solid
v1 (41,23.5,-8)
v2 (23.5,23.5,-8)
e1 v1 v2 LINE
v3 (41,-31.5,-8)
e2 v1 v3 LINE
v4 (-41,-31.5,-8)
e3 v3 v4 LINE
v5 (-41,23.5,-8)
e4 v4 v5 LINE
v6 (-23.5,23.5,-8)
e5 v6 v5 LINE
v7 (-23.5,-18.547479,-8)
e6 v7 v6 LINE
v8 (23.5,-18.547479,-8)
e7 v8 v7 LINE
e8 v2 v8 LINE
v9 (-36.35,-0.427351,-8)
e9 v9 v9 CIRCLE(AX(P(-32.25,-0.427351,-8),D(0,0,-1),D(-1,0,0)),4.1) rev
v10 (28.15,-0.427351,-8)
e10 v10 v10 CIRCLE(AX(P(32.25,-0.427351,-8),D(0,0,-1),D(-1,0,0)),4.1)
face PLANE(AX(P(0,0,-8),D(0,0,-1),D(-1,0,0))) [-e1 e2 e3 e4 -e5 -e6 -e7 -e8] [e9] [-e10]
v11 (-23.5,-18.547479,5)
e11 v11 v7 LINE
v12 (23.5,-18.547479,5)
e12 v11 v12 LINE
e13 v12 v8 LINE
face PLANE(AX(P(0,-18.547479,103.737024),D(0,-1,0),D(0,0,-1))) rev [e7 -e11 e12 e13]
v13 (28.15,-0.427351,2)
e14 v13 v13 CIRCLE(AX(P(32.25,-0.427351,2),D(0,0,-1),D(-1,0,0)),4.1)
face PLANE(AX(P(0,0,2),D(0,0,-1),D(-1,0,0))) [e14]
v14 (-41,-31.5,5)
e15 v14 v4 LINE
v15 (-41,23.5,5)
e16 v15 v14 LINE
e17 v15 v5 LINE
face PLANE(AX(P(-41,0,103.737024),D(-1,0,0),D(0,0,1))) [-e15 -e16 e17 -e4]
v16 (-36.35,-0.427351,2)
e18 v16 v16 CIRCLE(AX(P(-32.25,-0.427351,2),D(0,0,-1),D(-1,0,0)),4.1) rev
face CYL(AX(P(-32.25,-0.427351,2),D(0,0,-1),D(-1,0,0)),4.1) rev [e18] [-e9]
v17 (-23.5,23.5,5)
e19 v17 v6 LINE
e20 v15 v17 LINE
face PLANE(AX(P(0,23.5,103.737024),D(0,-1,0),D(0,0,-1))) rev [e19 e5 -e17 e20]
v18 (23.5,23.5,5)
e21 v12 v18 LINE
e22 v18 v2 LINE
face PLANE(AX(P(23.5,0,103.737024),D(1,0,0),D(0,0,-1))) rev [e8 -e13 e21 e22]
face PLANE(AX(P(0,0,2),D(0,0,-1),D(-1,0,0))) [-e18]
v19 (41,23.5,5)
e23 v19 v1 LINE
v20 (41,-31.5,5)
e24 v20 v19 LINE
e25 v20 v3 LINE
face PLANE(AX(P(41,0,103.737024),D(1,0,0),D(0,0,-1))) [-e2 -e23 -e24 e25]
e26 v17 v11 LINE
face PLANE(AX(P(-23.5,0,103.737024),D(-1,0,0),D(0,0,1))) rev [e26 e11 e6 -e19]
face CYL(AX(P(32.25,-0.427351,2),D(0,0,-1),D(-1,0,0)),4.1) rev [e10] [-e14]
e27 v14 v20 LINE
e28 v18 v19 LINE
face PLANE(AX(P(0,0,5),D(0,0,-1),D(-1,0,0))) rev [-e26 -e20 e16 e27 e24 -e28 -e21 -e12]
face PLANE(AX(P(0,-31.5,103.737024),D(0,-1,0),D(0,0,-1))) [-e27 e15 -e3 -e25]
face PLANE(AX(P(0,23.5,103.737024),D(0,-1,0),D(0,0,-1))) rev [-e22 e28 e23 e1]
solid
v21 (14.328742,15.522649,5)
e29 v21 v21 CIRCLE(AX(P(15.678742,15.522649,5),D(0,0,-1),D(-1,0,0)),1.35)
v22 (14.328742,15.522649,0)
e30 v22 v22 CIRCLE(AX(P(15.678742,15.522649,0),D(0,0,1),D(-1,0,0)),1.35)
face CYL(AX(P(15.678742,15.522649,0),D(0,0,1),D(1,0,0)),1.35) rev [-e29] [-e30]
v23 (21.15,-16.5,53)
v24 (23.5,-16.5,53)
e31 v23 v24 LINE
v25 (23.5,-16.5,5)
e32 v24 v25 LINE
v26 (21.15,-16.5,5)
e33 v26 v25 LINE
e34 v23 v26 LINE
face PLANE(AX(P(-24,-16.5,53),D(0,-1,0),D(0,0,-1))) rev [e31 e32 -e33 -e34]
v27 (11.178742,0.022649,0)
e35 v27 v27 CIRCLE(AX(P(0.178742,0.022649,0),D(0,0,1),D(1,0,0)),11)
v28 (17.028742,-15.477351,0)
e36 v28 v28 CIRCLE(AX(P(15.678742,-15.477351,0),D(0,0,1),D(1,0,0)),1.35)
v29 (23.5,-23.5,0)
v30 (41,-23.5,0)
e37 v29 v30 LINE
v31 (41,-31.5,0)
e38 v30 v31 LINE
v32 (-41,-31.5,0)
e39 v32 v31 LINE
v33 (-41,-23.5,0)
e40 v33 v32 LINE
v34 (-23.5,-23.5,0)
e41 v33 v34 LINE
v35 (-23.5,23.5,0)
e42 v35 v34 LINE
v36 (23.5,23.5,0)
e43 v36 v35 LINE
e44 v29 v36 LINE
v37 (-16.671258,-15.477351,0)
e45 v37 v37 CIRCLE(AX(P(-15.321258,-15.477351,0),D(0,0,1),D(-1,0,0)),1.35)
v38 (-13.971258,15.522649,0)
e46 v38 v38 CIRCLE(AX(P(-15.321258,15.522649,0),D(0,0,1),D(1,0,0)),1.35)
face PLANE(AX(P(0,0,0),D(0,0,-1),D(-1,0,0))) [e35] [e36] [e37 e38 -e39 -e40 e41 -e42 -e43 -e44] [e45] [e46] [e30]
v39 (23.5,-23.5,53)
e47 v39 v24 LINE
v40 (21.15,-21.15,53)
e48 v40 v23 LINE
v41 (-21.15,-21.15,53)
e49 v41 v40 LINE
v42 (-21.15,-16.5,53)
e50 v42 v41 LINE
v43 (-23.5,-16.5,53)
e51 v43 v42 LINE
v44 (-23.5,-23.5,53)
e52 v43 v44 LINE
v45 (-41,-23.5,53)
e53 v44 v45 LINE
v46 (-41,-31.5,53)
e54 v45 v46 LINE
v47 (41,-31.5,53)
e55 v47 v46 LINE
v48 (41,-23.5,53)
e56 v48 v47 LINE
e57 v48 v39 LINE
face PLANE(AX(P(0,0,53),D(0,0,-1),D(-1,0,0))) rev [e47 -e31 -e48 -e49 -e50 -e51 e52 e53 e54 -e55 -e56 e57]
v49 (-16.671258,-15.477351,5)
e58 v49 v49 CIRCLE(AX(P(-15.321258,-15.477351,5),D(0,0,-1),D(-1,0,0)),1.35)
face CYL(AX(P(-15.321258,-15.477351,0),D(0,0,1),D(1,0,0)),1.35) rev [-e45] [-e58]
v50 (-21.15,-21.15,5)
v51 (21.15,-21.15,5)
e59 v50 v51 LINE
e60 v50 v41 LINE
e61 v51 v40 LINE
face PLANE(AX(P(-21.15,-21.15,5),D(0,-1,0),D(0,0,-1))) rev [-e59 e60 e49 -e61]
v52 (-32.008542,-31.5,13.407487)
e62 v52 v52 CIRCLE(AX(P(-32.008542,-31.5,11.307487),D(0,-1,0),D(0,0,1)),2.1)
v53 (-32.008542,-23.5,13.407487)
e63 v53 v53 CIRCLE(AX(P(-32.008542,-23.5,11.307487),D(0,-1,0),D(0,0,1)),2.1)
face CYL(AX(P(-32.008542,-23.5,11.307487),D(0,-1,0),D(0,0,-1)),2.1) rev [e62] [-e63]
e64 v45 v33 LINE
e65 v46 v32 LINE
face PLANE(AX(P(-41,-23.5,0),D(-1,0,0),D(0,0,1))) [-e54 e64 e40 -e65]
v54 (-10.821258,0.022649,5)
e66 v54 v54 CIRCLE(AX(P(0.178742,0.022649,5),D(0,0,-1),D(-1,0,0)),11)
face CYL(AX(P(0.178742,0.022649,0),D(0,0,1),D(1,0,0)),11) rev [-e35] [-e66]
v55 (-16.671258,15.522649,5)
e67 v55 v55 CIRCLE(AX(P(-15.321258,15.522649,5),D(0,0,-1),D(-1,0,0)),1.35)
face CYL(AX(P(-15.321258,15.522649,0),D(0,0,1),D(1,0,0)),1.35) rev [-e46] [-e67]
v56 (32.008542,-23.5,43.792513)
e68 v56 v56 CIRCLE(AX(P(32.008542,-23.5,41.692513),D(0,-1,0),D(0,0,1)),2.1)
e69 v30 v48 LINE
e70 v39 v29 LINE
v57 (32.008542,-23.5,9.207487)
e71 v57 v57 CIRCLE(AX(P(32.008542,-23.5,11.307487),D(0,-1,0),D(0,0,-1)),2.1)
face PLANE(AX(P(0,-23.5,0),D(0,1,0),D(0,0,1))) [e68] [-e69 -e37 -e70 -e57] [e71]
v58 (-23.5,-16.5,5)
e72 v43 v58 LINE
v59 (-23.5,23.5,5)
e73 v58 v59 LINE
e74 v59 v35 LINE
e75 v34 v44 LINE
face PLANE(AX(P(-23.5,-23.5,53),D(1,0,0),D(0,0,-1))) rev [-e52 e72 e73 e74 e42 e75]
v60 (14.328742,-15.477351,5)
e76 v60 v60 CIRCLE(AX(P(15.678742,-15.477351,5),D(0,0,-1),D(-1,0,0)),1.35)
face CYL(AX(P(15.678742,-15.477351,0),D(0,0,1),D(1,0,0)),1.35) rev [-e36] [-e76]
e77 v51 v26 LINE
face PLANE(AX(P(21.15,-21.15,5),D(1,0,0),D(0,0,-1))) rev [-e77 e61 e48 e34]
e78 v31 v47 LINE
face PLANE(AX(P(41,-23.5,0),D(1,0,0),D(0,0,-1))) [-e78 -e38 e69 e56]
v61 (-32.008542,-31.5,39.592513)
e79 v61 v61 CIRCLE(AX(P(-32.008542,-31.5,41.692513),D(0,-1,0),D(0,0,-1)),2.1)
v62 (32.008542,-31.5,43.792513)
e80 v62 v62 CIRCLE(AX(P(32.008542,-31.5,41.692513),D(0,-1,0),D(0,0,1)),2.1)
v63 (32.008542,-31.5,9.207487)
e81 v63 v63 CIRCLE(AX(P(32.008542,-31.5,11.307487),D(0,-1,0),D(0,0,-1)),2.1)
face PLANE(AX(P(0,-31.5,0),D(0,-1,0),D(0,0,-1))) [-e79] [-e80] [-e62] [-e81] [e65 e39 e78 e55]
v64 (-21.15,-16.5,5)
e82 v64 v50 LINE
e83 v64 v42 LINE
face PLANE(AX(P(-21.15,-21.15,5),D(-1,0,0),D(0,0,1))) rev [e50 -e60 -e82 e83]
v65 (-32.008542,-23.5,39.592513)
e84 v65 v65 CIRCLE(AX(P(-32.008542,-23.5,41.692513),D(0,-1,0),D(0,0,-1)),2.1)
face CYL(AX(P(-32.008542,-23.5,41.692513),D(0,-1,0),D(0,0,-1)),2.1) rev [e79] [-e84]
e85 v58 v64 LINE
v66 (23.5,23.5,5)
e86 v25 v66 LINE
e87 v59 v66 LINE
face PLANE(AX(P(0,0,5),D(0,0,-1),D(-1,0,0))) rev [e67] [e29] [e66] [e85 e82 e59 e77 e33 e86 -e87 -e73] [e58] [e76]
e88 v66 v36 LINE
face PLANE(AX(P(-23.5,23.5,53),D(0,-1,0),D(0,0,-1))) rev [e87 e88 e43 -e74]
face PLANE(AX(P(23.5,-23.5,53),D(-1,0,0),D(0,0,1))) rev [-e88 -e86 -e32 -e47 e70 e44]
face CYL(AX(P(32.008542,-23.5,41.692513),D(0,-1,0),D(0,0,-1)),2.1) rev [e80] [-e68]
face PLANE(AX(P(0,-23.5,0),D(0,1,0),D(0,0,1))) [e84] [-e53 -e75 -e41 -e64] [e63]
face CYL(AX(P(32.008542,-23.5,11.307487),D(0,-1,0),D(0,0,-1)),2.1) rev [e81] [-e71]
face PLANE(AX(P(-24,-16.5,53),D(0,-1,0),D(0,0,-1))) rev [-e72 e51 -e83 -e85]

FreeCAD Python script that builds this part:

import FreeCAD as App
import Part
import Sketcher
Q = App.Units.Quantity

doc = App.newDocument("Part")
body = doc.addObject("PartDesign::Body", "Body")

# Sketch on XY plane
sketch1 = body.newObject("Sketcher::SketchObject", "Sketch")
sketch1.AttachmentSupport = (doc.getObject("XY_Plane"), [""])
sketch1.MapMode = "FlatFace"
sketch1.addGeometry(Part.LineSegment(App.Vector(-24, 24, 0), App.Vector(-24, -24, 0)), False)
sketch1.addGeometry(Part.LineSegment(App.Vector(-24, -24, 0), App.Vector(24, -24, 0)), False)
sketch1.addGeometry(Part.LineSegment(App.Vector(24, -24, 0), App.Vector(24, 24, 0)), False)
sketch1.addGeometry(Part.LineSegment(App.Vector(24, 24, 0), App.Vector(-24, 24, 0)), False)
sketch1.addConstraint(Sketcher.Constraint("Coincident", 0, 2, 1, 1))
sketch1.addConstraint(Sketcher.Constraint("Coincident", 1, 2, 2, 1))
sketch1.addConstraint(Sketcher.Constraint("Coincident", 2, 2, 3, 1))
sketch1.addConstraint(Sketcher.Constraint("Coincident", 3, 2, 0, 1))
sketch1.addConstraint(Sketcher.Constraint("Vertical", 0))
sketch1.addConstraint(Sketcher.Constraint("Horizontal", 1))
sketch1.addConstraint(Sketcher.Constraint("Vertical", 2))
sketch1.addConstraint(Sketcher.Constraint("Horizontal", 3))
sketch1.addConstraint(Sketcher.Constraint("Symmetric", 0, 2, 2, 2, -1, 1))
sketch1.addConstraint(Sketcher.Constraint("Equal", 3, 0))
sketch1.addConstraint(Sketcher.Constraint("DistanceX", 1, 1, 1, 2, Q("47 mm")))
pad1 = body.newObject("PartDesign::Pad", "Pad")
pad1.Profile = sketch1
pad1.Length = 53

# Sketch on XY plane
sketch2 = body.newObject("Sketcher::SketchObject", "Sketch001")
sketch2.AttachmentSupport = (doc.getObject("XY_Plane"), [""])
sketch2.MapMode = "FlatFace"
sketch2.AttachmentOffset = App.Placement(App.Vector(0, 0, 53), App.Rotation())
sketch2.addGeometry(Part.LineSegment(App.Vector(-21, 21, 0), App.Vector(-21, -21, 0)), False)
sketch2.addGeometry(Part.LineSegment(App.Vector(-21, -21, 0), App.Vector(21, -21, 0)), False)
sketch2.addGeometry(Part.LineSegment(App.Vector(21, -21, 0), App.Vector(21, 21, 0)), False)
sketch2.addGeometry(Part.LineSegment(App.Vector(21, 21, 0), App.Vector(-21, 21, 0)), False)
sketch2.addConstraint(Sketcher.Constraint("Coincident", 0, 2, 1, 1))
sketch2.addConstraint(Sketcher.Constraint("Coincident", 1, 2, 2, 1))
sketch2.addConstraint(Sketcher.Constraint("Coincident", 2, 2, 3, 1))
sketch2.addConstraint(Sketcher.Constraint("Coincident", 3, 2, 0, 1))
sketch2.addConstraint(Sketcher.Constraint("Vertical", 0))
sketch2.addConstraint(Sketcher.Constraint("Horizontal", 1))
sketch2.addConstraint(Sketcher.Constraint("Vertical", 2))
sketch2.addConstraint(Sketcher.Constraint("Horizontal", 3))
sketch2.addConstraint(Sketcher.Constraint("Symmetric", 0, 2, 2, 2, -1, 1))
sketch2.addConstraint(Sketcher.Constraint("Equal", 3, 0))
sketch2.addConstraint(Sketcher.Constraint("DistanceX", 1, 1, 1, 2, Q("42.3 mm")))
pocket1 = body.newObject("PartDesign::Pocket", "Pocket")
pocket1.Profile = sketch2
pocket1.Length = 48

# Sketch on XY plane
sketch3 = body.newObject("Sketcher::SketchObject", "Sketch002")
sketch3.AttachmentSupport = (doc.getObject("XY_Plane"), [""])
sketch3.MapMode = "FlatFace"
sketch3.AttachmentOffset = App.Placement(App.Vector(0, 0, 5), App.Rotation())
sketch3.addGeometry(Part.Circle(App.Vector(0.2, 0, 0), App.Vector(0, 0, 1), 11), False)
sketch3.addGeometry(Part.Circle(App.Vector(-15.3, 15.5, 0), App.Vector(0, 0, 1), 1.4), False)
sketch3.addGeometry(Part.Circle(App.Vector(15.7, 15.5, 0), App.Vector(0, 0, 1), 1.4), False)
sketch3.addGeometry(Part.Circle(App.Vector(15.7, -15.5, 0), App.Vector(0, 0, 1), 1.4), False)
sketch3.addGeometry(Part.Circle(App.Vector(-15.3, -15.5, 0), App.Vector(0, 0, 1), 1.4), False)
sketch3.addConstraint(Sketcher.Constraint("Equal", 1, 2))
sketch3.addConstraint(Sketcher.Constraint("Equal", 2, 3))
sketch3.addConstraint(Sketcher.Constraint("Equal", 3, 4))
sketch3.addConstraint(Sketcher.Constraint("Horizontal", 1, 3, 2, 3))
sketch3.addConstraint(Sketcher.Constraint("Horizontal", 3, 3, 4, 3))
sketch3.addConstraint(Sketcher.Constraint("Vertical", 2, 3, 3, 3))
sketch3.addConstraint(Sketcher.Constraint("Vertical", 1, 3, 4, 3))
sketch3.addConstraint(Sketcher.Constraint("Diameter", 0, Q("22 mm")))
sketch3.addConstraint(Sketcher.Constraint("Diameter", 1, Q("2.7 mm")))
sketch3.addConstraint(Sketcher.Constraint("DistanceX", 1, 3, 2, 3, Q("31 mm")))
sketch3.addConstraint(Sketcher.Constraint("DistanceY", 3, 3, 2, 3, Q("31 mm")))
sketch3.addConstraint(Sketcher.Constraint("DistanceX", 1, 3, 0, 3, Q("15.5 mm")))
sketch3.addConstraint(Sketcher.Constraint("DistanceY", 0, 3, 1, 3, Q("15.5 mm")))
sketch3.addConstraint(Sketcher.Constraint("DistanceY", -1, 1, 0, 3, Q("0.022649 mm")))
sketch3.addConstraint(Sketcher.Constraint("DistanceX", -1, 1, 0, 3, Q("0.178742 mm")))
pocket2 = body.newObject("PartDesign::Pocket", "Pocket001")
pocket2.Profile = sketch3
pocket2.Type = "ThroughAll"
pocket2.Midplane = True

# Sketch on YZ plane
sketch4 = body.newObject("Sketcher::SketchObject", "Sketch003")
sketch4.AttachmentSupport = (doc.getObject("YZ_Plane"), [""])
sketch4.MapMode = "FlatFace"
sketch4.AttachmentOffset = App.Placement(App.Vector(0, 0, 23.5), App.Rotation())
sketch4.addGeometry(Part.LineSegment(App.Vector(24, 53, 0), App.Vector(-16, 53, 0)), False)
sketch4.addGeometry(Part.LineSegment(App.Vector(-16, 53, 0), App.Vector(-16, 5, 0)), False)
sketch4.addGeometry(Part.LineSegment(App.Vector(-16, 5, 0), App.Vector(24, 5, 0)), False)
sketch4.addGeometry(Part.LineSegment(App.Vector(24, 5, 0), App.Vector(24, 53, 0)), False)
sketch4.addConstraint(Sketcher.Constraint("Coincident", 0, 2, 1, 1))
sketch4.addConstraint(Sketcher.Constraint("Coincident", 1, 2, 2, 1))
sketch4.addConstraint(Sketcher.Constraint("Coincident", 2, 2, 3, 1))
sketch4.addConstraint(Sketcher.Constraint("Coincident", 3, 2, 0, 1))
sketch4.addConstraint(Sketcher.Constraint("Horizontal", 0))
sketch4.addConstraint(Sketcher.Constraint("Vertical", 1))
sketch4.addConstraint(Sketcher.Constraint("Horizontal", 2))
sketch4.addConstraint(Sketcher.Constraint("Vertical", 3))
sketch4.addConstraint(Sketcher.Constraint("DistanceX", 0, 2, 0, 1, Q("40 mm")))
sketch4.addConstraint(Sketcher.Constraint("DistanceY", 1, 2, 1, 1, Q("48 mm")))
sketch4.addConstraint(Sketcher.Constraint("DistanceY", -1, 1, 0, 2, Q("53 mm")))
sketch4.addConstraint(Sketcher.Constraint("DistanceX", 0, 2, -1, 1, Q("16.5 mm")))
pocket3 = body.newObject("PartDesign::Pocket", "Pocket002")
pocket3.Profile = sketch4
pocket3.Length = 47.5

# Sketch on XZ plane
sketch5 = body.newObject("Sketcher::SketchObject", "Sketch004")
sketch5.AttachmentSupport = (doc.getObject("XZ_Plane"), [""])
sketch5.MapMode = "FlatFace"
sketch5.AttachmentOffset = App.Placement(App.Vector(0, 0, 23.5), App.Rotation())
sketch5.addGeometry(Part.LineSegment(App.Vector(-24, 53, 0), App.Vector(-24, 0, 0)), False)
sketch5.addGeometry(Part.LineSegment(App.Vector(-24, 0, 0), App.Vector(24, 0, 0)), False)
sketch5.addGeometry(Part.LineSegment(App.Vector(24, 0, 0), App.Vector(24, 53, 0)), False)
sketch5.addGeometry(Part.LineSegment(App.Vector(24, 53, 0), App.Vector(-24, 53, 0)), False)
sketch5.addConstraint(Sketcher.Constraint("Coincident", 0, 2, 1, 1))
sketch5.addConstraint(Sketcher.Constraint("Coincident", 1, 2, 2, 1))
sketch5.addConstraint(Sketcher.Constraint("Coincident", 2, 2, 3, 1))
sketch5.addConstraint(Sketcher.Constraint("Coincident", 3, 2, 0, 1))
sketch5.addConstraint(Sketcher.Constraint("Vertical", 0))
sketch5.addConstraint(Sketcher.Constraint("Horizontal", 1))
sketch5.addConstraint(Sketcher.Constraint("Vertical", 2))
sketch5.addConstraint(Sketcher.Constraint("Horizontal", 3))
sketch5.addConstraint(Sketcher.Constraint("Symmetric", 0, 2, 1, 2, -1, 1))
sketch5.addConstraint(Sketcher.Constraint("DistanceX", 1, 1, 1, 2, Q("47 mm")))
sketch5.addConstraint(Sketcher.Constraint("DistanceY", 0, 2, 0, 1, Q("53 mm")))
pad2 = body.newObject("PartDesign::Pad", "Pad001")
pad2.Profile = sketch5
pad2.Length = 8

# Sketch on XZ plane
sketch6 = body.newObject("Sketcher::SketchObject", "Sketch005")
sketch6.AttachmentSupport = (doc.getObject("XZ_Plane"), [""])
sketch6.MapMode = "FlatFace"
sketch6.AttachmentOffset = App.Placement(App.Vector(0, 0, 31.5), App.Rotation())
sketch6.addGeometry(Part.LineSegment(App.Vector(-41, 53, 0), App.Vector(-41, 0, 0)), False)
sketch6.addGeometry(Part.LineSegment(App.Vector(-41, 0, 0), App.Vector(41, 0, 0)), False)
sketch6.addGeometry(Part.LineSegment(App.Vector(41, 0, 0), App.Vector(41, 53, 0)), False)
sketch6.addGeometry(Part.LineSegment(App.Vector(41, 53, 0), App.Vector(-41, 53, 0)), False)
sketch6.addGeometry(Part.Circle(App.Vector(-32, 11.3, 0), App.Vector(0, 0, 1), 2.1), False)
sketch6.addGeometry(Part.Circle(App.Vector(32, 11.3, 0), App.Vector(0, 0, 1), 2.1), False)
sketch6.addGeometry(Part.Circle(App.Vector(-32, 41.7, 0), App.Vector(0, 0, 1), 2.1), False)
sketch6.addGeometry(Part.Circle(App.Vector(32, 41.7, 0), App.Vector(0, 0, 1), 2.1), False)
sketch6.addConstraint(Sketcher.Constraint("Coincident", 0, 2, 1, 1))
sketch6.addConstraint(Sketcher.Constraint("Coincident", 1, 2, 2, 1))
sketch6.addConstraint(Sketcher.Constraint("Coincident", 2, 2, 3, 1))
sketch6.addConstraint(Sketcher.Constraint("Coincident", 3, 2, 0, 1))
sketch6.addConstraint(Sketcher.Constraint("Vertical", 0))
sketch6.addConstraint(Sketcher.Constraint("Horizontal", 1))
sketch6.addConstraint(Sketcher.Constraint("Vertical", 2))
sketch6.addConstraint(Sketcher.Constraint("Horizontal", 3))
sketch6.addConstraint(Sketcher.Constraint("Equal", 4, 5))
sketch6.addConstraint(Sketcher.Constraint("Equal", 5, 6))
sketch6.addConstraint(Sketcher.Constraint("Equal", 6, 7))
sketch6.addConstraint(Sketcher.Constraint("Symmetric", 0, 2, 1, 2, -1, 1))
sketch6.addConstraint(Sketcher.Constraint("Symmetric", 4, 3, 5, 3, -2))
sketch6.addConstraint(Sketcher.Constraint("Symmetric", 6, 3, 7, 3, -2))
sketch6.addConstraint(Sketcher.Constraint("Vertical", 4, 3, 6, 3))
sketch6.addConstraint(Sketcher.Constraint("Diameter", 4, Q("4.2 mm")))
sketch6.addConstraint(Sketcher.Constraint("DistanceX", 1, 1, 1, 2, Q("82 mm")))
sketch6.addConstraint(Sketcher.Constraint("DistanceY", 0, 2, 0, 1, Q("53 mm")))
sketch6.addConstraint(Sketcher.Constraint("DistanceX", 4, 3, -1, 1, Q("32.008542 mm")))
sketch6.addConstraint(Sketcher.Constraint("DistanceY", -1, 1, 4, 3, Q("11.307487 mm")))
sketch6.addConstraint(Sketcher.Constraint("DistanceY", -1, 1, 6, 3, Q("41.692513 mm")))
pad3 = body.newObject("PartDesign::Pad", "Pad002")
pad3.Profile = sketch6
pad3.Length = 8
pad3.Reversed = True
body2 = doc.addObject("PartDesign::Body", "Body001")

# Sketch on XY plane
sketch7 = body2.newObject("Sketcher::SketchObject", "Sketch006")
sketch7.AttachmentSupport = (doc.getObject("XY_Plane001"), [""])
sketch7.MapMode = "FlatFace"
sketch7.addGeometry(Part.LineSegment(App.Vector(24, 24, 0), App.Vector(41, 24, 0)), False)
sketch7.addGeometry(Part.LineSegment(App.Vector(41, 24, 0), App.Vector(41, -32, 0)), False)
sketch7.addGeometry(Part.LineSegment(App.Vector(41, -32, 0), App.Vector(-41, -32, 0)), False)
sketch7.addGeometry(Part.LineSegment(App.Vector(-41, -32, 0), App.Vector(-41, 24, 0)), False)
sketch7.addGeometry(Part.LineSegment(App.Vector(-41, 24, 0), App.Vector(-24, 24, 0)), False)
sketch7.addGeometry(Part.LineSegment(App.Vector(-24, 24, 0), App.Vector(-24, -19, 0)), False)
sketch7.addGeometry(Part.LineSegment(App.Vector(-24, -19, 0), App.Vector(24, -19, 0)), False)
sketch7.addGeometry(Part.LineSegment(App.Vector(24, -19, 0), App.Vector(24, 24, 0)), False)
sketch7.addConstraint(Sketcher.Constraint("Coincident", 0, 2, 1, 1))
sketch7.addConstraint(Sketcher.Constraint("Coincident", 1, 2, 2, 1))
sketch7.addConstraint(Sketcher.Constraint("Coincident", 2, 2, 3, 1))
sketch7.addConstraint(Sketcher.Constraint("Coincident", 3, 2, 4, 1))
sketch7.addConstraint(Sketcher.Constraint("Coincident", 4, 2, 5, 1))
sketch7.addConstraint(Sketcher.Constraint("Coincident", 5, 2, 6, 1))
sketch7.addConstraint(Sketcher.Constraint("Coincident", 6, 2, 7, 1))
sketch7.addConstraint(Sketcher.Constraint("Coincident", 7, 2, 0, 1))
sketch7.addConstraint(Sketcher.Constraint("Horizontal", 0))
sketch7.addConstraint(Sketcher.Constraint("Vertical", 1))
sketch7.addConstraint(Sketcher.Constraint("Horizontal", 2))
sketch7.addConstraint(Sketcher.Constraint("Vertical", 3))
sketch7.addConstraint(Sketcher.Constraint("Horizontal", 4))
sketch7.addConstraint(Sketcher.Constraint("Vertical", 5))
sketch7.addConstraint(Sketcher.Constraint("Horizontal", 6))
sketch7.addConstraint(Sketcher.Constraint("Vertical", 7))
sketch7.addConstraint(Sketcher.Constraint("Symmetric", 0, 2, 3, 2, -2))
sketch7.addConstraint(Sketcher.Constraint("Equal", 0, 4))
sketch7.addConstraint(Sketcher.Constraint("DistanceX", 2, 2, 2, 1, Q("82 mm")))
sketch7.addConstraint(Sketcher.Constraint("DistanceX", 6, 1, 6, 2, Q("47 mm")))
sketch7.addConstraint(Sketcher.Constraint("DistanceY", 1, 2, 1, 1, Q("55 mm")))
sketch7.addConstraint(Sketcher.Constraint("DistanceY", -1, 1, 0, 2, Q("23.5 mm")))
sketch7.addConstraint(Sketcher.Constraint("DistanceY", 5, 2, 5, 1, Q("42.047479 mm")))
pad4 = body2.newObject("PartDesign::Pad", "Pad003")
pad4.Profile = sketch7
pad4.Type = "TwoLengths"
pad4.Length = 8
pad4.Length2 = 5
pad4.Reversed = True

# Sketch on XY plane
sketch8 = body2.newObject("Sketcher::SketchObject", "Sketch007")
sketch8.AttachmentSupport = (doc.getObject("XY_Plane001"), [""])
sketch8.MapMode = "FlatFace"
sketch8.AttachmentOffset = App.Placement(App.Vector(0, 0, -8), App.Rotation())
sketch8.addGeometry(Part.Circle(App.Vector(32.2, -0.4, 0), App.Vector(0, 0, 1), 4.1), False)
sketch8.addGeometry(Part.Circle(App.Vector(-32.2, -0.4, 0), App.Vector(0, 0, 1), 4.1), False)
sketch8.addConstraint(Sketcher.Constraint("Equal", 0, 1))
sketch8.addConstraint(Sketcher.Constraint("Symmetric", 0, 3, 1, 3, -2))
sketch8.addConstraint(Sketcher.Constraint("Diameter", 0, Q("8.2 mm")))
sketch8.addConstraint(Sketcher.Constraint("DistanceX", 1, 3, 0, 3, Q("64.5 mm")))
sketch8.addConstraint(Sketcher.Constraint("DistanceY", 0, 3, -1, 1, Q("0.427351 mm")))
pocket4 = body2.newObject("PartDesign::Pocket", "Pocket003")
pocket4.Profile = sketch8
pocket4.Length = 10
pocket4.Reversed = True

doc.recompute()
